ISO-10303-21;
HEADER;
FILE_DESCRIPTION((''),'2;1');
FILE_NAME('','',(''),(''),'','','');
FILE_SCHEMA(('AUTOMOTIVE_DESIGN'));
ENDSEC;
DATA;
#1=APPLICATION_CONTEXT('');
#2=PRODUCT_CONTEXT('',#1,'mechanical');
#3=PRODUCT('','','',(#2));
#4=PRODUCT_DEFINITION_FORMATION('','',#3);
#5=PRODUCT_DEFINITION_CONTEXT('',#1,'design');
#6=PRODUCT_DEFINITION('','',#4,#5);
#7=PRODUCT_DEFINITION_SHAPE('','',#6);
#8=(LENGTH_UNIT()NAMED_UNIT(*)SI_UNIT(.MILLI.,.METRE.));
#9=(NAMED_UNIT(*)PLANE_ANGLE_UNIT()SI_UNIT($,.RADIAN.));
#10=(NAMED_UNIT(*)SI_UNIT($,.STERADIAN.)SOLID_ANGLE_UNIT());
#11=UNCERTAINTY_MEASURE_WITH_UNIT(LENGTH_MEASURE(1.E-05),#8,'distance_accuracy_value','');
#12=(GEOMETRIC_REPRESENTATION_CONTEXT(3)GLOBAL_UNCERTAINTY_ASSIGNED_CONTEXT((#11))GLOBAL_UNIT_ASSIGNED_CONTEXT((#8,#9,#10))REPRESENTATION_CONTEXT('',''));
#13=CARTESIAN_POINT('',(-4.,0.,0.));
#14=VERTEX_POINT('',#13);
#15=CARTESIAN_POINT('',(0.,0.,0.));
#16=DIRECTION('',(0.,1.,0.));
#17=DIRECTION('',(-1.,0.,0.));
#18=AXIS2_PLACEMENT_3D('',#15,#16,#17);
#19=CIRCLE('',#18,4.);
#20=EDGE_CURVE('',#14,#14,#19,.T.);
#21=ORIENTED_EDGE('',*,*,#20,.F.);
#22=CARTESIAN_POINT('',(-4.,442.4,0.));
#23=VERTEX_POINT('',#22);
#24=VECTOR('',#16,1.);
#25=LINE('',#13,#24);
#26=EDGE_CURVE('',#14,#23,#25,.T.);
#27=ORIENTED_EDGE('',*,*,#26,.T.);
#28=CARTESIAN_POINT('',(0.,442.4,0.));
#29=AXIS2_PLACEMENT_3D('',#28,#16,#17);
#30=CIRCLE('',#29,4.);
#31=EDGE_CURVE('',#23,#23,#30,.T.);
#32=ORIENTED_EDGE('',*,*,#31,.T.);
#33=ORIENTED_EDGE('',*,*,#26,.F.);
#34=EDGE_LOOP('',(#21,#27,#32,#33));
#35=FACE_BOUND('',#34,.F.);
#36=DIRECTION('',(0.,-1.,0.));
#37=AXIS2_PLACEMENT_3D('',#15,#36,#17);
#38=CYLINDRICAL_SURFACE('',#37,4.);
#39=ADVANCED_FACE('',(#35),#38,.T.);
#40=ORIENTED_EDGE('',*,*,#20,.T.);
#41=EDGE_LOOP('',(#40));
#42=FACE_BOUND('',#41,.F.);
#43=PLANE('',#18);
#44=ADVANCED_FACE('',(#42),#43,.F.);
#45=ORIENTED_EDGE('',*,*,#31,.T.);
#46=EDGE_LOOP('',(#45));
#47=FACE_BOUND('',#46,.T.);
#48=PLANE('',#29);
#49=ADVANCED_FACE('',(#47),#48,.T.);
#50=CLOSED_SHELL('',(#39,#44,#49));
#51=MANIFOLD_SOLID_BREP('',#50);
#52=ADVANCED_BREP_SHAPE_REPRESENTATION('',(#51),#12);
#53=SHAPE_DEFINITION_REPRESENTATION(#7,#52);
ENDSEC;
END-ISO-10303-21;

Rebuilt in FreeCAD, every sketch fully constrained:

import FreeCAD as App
import Part
import Sketcher

doc = App.newDocument("Part")
body = doc.addObject("PartDesign::Body", "Body")

# Sketch on XZ plane
sketch1 = body.newObject("Sketcher::SketchObject", "Sketch")
sketch1.AttachmentSupport = (doc.getObject("XZ_Plane"), [""])
sketch1.MapMode = "FlatFace"
sketch1.addGeometry(Part.Circle(App.Vector(0, 0, 0), App.Vector(0, 0, 1), 4), False)
sketch1.addConstraint([
    Sketcher.Constraint("Coincident", 0, 3, -1, 1),
    Sketcher.Constraint("Diameter", 0, 8.0),
])
pad1 = body.newObject("PartDesign::Pad", "Pad")
pad1.Profile = sketch1
pad1.Length = 442.4
pad1.Reversed = True

doc.recompute()
